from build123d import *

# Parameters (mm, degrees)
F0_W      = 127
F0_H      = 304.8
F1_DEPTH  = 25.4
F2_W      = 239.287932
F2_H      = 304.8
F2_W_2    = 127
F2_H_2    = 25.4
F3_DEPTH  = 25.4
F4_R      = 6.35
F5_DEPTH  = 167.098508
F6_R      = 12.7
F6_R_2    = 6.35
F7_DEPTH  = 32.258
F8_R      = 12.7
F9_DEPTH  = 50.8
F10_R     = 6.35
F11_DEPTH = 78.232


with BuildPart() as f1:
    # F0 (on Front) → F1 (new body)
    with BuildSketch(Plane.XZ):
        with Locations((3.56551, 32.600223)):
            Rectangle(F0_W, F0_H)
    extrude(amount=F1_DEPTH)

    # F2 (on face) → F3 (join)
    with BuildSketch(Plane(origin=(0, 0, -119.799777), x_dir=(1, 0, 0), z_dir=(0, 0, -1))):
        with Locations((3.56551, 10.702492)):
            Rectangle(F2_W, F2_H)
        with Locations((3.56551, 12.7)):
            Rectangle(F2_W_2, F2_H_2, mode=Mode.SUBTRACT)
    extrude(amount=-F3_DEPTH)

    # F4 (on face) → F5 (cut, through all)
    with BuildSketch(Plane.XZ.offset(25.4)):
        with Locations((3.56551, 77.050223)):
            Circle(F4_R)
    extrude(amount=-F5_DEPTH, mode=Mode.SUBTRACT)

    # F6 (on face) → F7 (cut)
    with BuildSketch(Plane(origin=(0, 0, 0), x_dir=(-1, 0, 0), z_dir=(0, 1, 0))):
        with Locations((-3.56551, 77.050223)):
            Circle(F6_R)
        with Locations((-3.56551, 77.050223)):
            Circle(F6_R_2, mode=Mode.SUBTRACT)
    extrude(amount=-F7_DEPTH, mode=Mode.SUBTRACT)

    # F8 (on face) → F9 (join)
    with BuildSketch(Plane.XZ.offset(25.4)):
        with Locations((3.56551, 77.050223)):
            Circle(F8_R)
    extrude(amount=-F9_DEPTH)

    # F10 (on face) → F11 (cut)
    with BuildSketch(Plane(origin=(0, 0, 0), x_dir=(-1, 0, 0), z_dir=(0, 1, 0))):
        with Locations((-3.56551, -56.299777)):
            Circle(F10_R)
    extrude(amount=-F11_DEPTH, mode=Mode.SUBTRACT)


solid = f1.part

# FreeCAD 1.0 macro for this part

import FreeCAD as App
import Part
import Sketcher

V = App.Vector
Q = App.Units.Quantity

doc = App.newDocument("Part")
body = doc.addObject("PartDesign::Body", "Body")

sketch1 = body.newObject("Sketcher::SketchObject", "Sketch")
sketch1.AttachmentSupport = (doc.getObject("XZ_Plane"), [""])
sketch1.MapMode = "FlatFace"
sketch1.addGeometry([
    Part.LineSegment(V(-60, 185, 0), V(-60, -120, 0)),
    Part.LineSegment(V(-60, -120, 0), V(67, -120, 0)),
    Part.LineSegment(V(67, -120, 0), V(67, 185, 0)),
    Part.LineSegment(V(67, 185, 0), V(-60, 185, 0)),
], False)
sketch1.addConstraint([
    Sketcher.Constraint("Coincident", 0, 2, 1, 1),
    Sketcher.Constraint("Coincident", 1, 2, 2, 1),
    Sketcher.Constraint("Coincident", 2, 2, 3, 1),
    Sketcher.Constraint("Coincident", 3, 2, 0, 1),
    Sketcher.Constraint("Vertical", 0),
    Sketcher.Constraint("Horizontal", 1),
    Sketcher.Constraint("Vertical", 2),
    Sketcher.Constraint("Horizontal", 3),
    Sketcher.Constraint("DistanceX", 1, 1, 1, 2, Q("5 in")),
    Sketcher.Constraint("DistanceY", 0, 2, 0, 1, Q("12 in")),
    Sketcher.Constraint("DistanceX", 0, 2, -1, 1, Q("59.93449 mm")),
    Sketcher.Constraint("DistanceY", 0, 2, -1, 1, Q("119.799777 mm")),
])
pad1 = body.newObject("PartDesign::Pad", "Pad")
pad1.Profile = sketch1
pad1.Length = Q("1 in")

sketch2 = body.newObject("Sketcher::SketchObject", "Sketch001")
sketch2.AttachmentSupport = (doc.getObject("XY_Plane"), [""])
sketch2.MapMode = "FlatFace"
sketch2.AttachmentOffset = App.Placement(V(0, 0, -119.799777), App.Rotation())
sketch2.addGeometry([
    Part.LineSegment(V(-116, -163, 0), V(-116, 142, 0)),
    Part.LineSegment(V(-116, 142, 0), V(123, 142, 0)),
    Part.LineSegment(V(123, 142, 0), V(123, -163, 0)),
    Part.LineSegment(V(123, -163, 0), V(-116, -163, 0)),
    Part.LineSegment(V(67, 0, 0), V(-60, 0, 0)),
    Part.LineSegment(V(-60, 0, 0), V(-60, -25, 0)),
    Part.LineSegment(V(-60, -25, 0), V(67, -25, 0)),
    Part.LineSegment(V(67, -25, 0), V(67, 0, 0)),
], False)
sketch2.addConstraint([
    Sketcher.Constraint("Coincident", 0, 2, 1, 1),
    Sketcher.Constraint("Coincident", 1, 2, 2, 1),
    Sketcher.Constraint("Coincident", 2, 2, 3, 1),
    Sketcher.Constraint("Coincident", 3, 2, 0, 1),
    Sketcher.Constraint("Coincident", 4, 2, 5, 1),
    Sketcher.Constraint("Coincident", 5, 2, 6, 1),
    Sketcher.Constraint("Coincident", 6, 2, 7, 1),
    Sketcher.Constraint("Coincident", 7, 2, 4, 1),
    Sketcher.Constraint("Vertical", 0),
    Sketcher.Constraint("Horizontal", 1),
    Sketcher.Constraint("Vertical", 2),
    Sketcher.Constraint("Horizontal", 3),
    Sketcher.Constraint("Horizontal", 4),
    Sketcher.Constraint("Vertical", 5),
    Sketcher.Constraint("Horizontal", 6),
    Sketcher.Constraint("Vertical", 7),
    Sketcher.Constraint("PointOnObject", 4, 2, -1),
    Sketcher.Constraint("DistanceX", 4, 2, 4, 1, Q("5 in")),
    Sketcher.Constraint("DistanceY", 0, 1, 0, 2, Q("12 in")),
    Sketcher.Constraint("DistanceY", 5, 2, 5, 1, Q("1 in")),
    Sketcher.Constraint("DistanceX", 1, 1, 1, 2, Q("239.287932 mm")),
    Sketcher.Constraint("DistanceY", -1, 1, 0, 2, Q("141.697508 mm")),
    Sketcher.Constraint("DistanceX", 4, 2, -1, 1, Q("59.93449 mm")),
    Sketcher.Constraint("DistanceX", 0, 2, -1, 1, Q("116.078456 mm")),
])
pad2 = body.newObject("PartDesign::Pad", "Pad001")
pad2.Profile = sketch2
pad2.Length = Q("1 in")

sketch3 = body.newObject("Sketcher::SketchObject", "Sketch002")
sketch3.AttachmentSupport = (doc.getObject("XZ_Plane"), [""])
sketch3.MapMode = "FlatFace"
sketch3.AttachmentOffset = App.Placement(V(0, 0, 1 * 25.4), App.Rotation())
sketch3.addGeometry(Part.Circle(V(4, 77, 0), V(0, 0, 1), 6), False)
sketch3.addConstraint([
    Sketcher.Constraint("Diameter", 0, Q("0.5 in")),
    Sketcher.Constraint("DistanceX", -1, 1, 0, 3, Q("3.56551 mm")),
    Sketcher.Constraint("DistanceY", -1, 1, 0, 3, Q("77.050223 mm")),
])
pocket1 = body.newObject("PartDesign::Pocket", "Pocket")
pocket1.Profile = sketch3
pocket1.Type = "ThroughAll"

sketch4 = body.newObject("Sketcher::SketchObject", "Sketch003")
sketch4.AttachmentSupport = (doc.getObject("XZ_Plane"), [""])
sketch4.MapMode = "FlatFace"
sketch4.addGeometry([
    Part.Circle(V(4, 77, 0), V(0, 0, 1), 13),
    Part.Circle(V(4, 77, 0), V(0, 0, 1), 6),
], False)
sketch4.addConstraint([
    Sketcher.Constraint("Coincident", 1, 3, 0, 3),
    Sketcher.Constraint("Diameter", 0, Q("1 in")),
    Sketcher.Constraint("Diameter", 1, Q("0.5 in")),
    Sketcher.Constraint("DistanceX", -1, 1, 0, 3, Q("3.56551 mm")),
    Sketcher.Constraint("DistanceY", -1, 1, 0, 3, Q("77.050223 mm")),
])
pocket2 = body.newObject("PartDesign::Pocket", "Pocket001")
pocket2.Profile = sketch4
pocket2.Length = Q("1.27 in")
pocket2.Reversed = True

sketch5 = body.newObject("Sketcher::SketchObject", "Sketch004")
sketch5.AttachmentSupport = (doc.getObject("XZ_Plane"), [""])
sketch5.MapMode = "FlatFace"
sketch5.AttachmentOffset = App.Placement(V(0, 0, 1 * 25.4), App.Rotation())
sketch5.addGeometry(Part.Circle(V(4, 77, 0), V(0, 0, 1), 13), False)
sketch5.addConstraint([
    Sketcher.Constraint("Diameter", 0, Q("1 in")),
    Sketcher.Constraint("DistanceX", -1, 1, 0, 3, Q("3.56551 mm")),
    Sketcher.Constraint("DistanceY", -1, 1, 0, 3, Q("77.050223 mm")),
])
pad3 = body.newObject("PartDesign::Pad", "Pad002")
pad3.Profile = sketch5
pad3.Length = Q("2 in")
pad3.Reversed = True

sketch6 = body.newObject("Sketcher::SketchObject", "Sketch005")
sketch6.AttachmentSupport = (doc.getObject("XZ_Plane"), [""])
sketch6.MapMode = "FlatFace"
sketch6.addGeometry(Part.Circle(V(4, -56, 0), V(0, 0, 1), 6), False)
sketch6.addConstraint([
    Sketcher.Constraint("Diameter", 0, Q("0.5 in")),
    Sketcher.Constraint("DistanceX", -1, 1, 0, 3, Q("3.56551 mm")),
    Sketcher.Constraint("DistanceY", 0, 3, -1, 1, Q("56.299777 mm")),
])
pocket3 = body.newObject("PartDesign::Pocket", "Pocket002")
pocket3.Profile = sketch6
pocket3.Length = Q("3.08 in")
pocket3.Reversed = True

doc.recompute()
